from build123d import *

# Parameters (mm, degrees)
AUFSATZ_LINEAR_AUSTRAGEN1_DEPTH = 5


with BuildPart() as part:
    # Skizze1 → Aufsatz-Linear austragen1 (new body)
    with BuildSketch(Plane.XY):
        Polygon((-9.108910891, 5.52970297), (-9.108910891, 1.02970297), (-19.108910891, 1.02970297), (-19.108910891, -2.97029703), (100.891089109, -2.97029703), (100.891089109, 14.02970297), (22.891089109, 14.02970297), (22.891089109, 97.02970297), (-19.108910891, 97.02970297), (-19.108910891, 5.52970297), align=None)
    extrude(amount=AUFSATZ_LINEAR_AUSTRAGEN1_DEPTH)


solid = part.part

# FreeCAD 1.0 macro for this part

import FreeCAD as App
import Part
import Sketcher
from FreeCAD import Vector
Q = App.Units.Quantity

doc = App.newDocument("Part")
body = doc.addObject("PartDesign::Body", "Body")

# Sketch on XY plane
sketch1 = body.newObject("Sketcher::SketchObject", "Sketch")
sketch1.AttachmentSupport = (doc.getObject("XY_Plane"), [""])
sketch1.MapMode = "FlatFace"
sketch1.addGeometry([
    Part.LineSegment(Vector(-9.108911, 5.529703, 0), Vector(-9.108911, 1.029703, 0)),  # 0
    Part.LineSegment(Vector(-9.108911, 1.029703, 0), Vector(-19.108911, 1.029703, 0)),  # 1
    Part.LineSegment(Vector(-19.108911, 1.029703, 0), Vector(-19.108911, -2.970297, 0)),  # 2
    Part.LineSegment(Vector(-19.108911, -2.970297, 0), Vector(100.891089, -2.970297, 0)),  # 3
    Part.LineSegment(Vector(100.891089, -2.970297, 0), Vector(100.891089, 14.029703, 0)),  # 4
    Part.LineSegment(Vector(100.891089, 14.029703, 0), Vector(22.891089, 14.029703, 0)),  # 5
    Part.LineSegment(Vector(22.891089, 14.029703, 0), Vector(22.891089, 97.029703, 0)),  # 6
    Part.LineSegment(Vector(22.891089, 97.029703, 0), Vector(-19.108911, 97.029703, 0)),  # 7
    Part.LineSegment(Vector(-19.108911, 97.029703, 0), Vector(-19.108911, 5.529703, 0)),  # 8
    Part.LineSegment(Vector(-19.108911, 5.529703, 0), Vector(-9.108911, 5.529703, 0)),  # 9
], False)
sketch1.addConstraint([
    Sketcher.Constraint("Coincident", 0, 2, 1, 1),
    Sketcher.Constraint("Coincident", 1, 2, 2, 1),
    Sketcher.Constraint("Coincident", 2, 2, 3, 1),
    Sketcher.Constraint("Coincident", 3, 2, 4, 1),
    Sketcher.Constraint("Coincident", 4, 2, 5, 1),
    Sketcher.Constraint("Coincident", 5, 2, 6, 1),
    Sketcher.Constraint("Coincident", 6, 2, 7, 1),
    Sketcher.Constraint("Coincident", 7, 2, 8, 1),
    Sketcher.Constraint("Coincident", 8, 2, 9, 1),
    Sketcher.Constraint("Coincident", 9, 2, 0, 1),
    Sketcher.Constraint("Vertical", 0),
    Sketcher.Constraint("Horizontal", 1),
    Sketcher.Constraint("Vertical", 2),
    Sketcher.Constraint("Horizontal", 3),
    Sketcher.Constraint("Vertical", 4),
    Sketcher.Constraint("Horizontal", 5),
    Sketcher.Constraint("Vertical", 6),
    Sketcher.Constraint("Horizontal", 7),
    Sketcher.Constraint("Vertical", 8),
    Sketcher.Constraint("Horizontal", 9),
    Sketcher.Constraint("Vertical", 2, 2, 7, 2),
    Sketcher.Constraint("DistanceX", 1, 2, 1, 1, Q("10 mm")),
    Sketcher.Constraint("DistanceX", 3, 1, 3, 2, Q("120 mm")),
    Sketcher.Constraint("DistanceX", 5, 2, 5, 1, Q("78 mm")),
    Sketcher.Constraint("DistanceY", 2, 2, 2, 1, Q("4 mm")),
    Sketcher.Constraint("DistanceY", 4, 1, 4, 2, Q("17 mm")),
    Sketcher.Constraint("DistanceY", 6, 1, 6, 2, Q("83 mm")),
    Sketcher.Constraint("DistanceY", 0, 2, 0, 1, Q("4.5 mm")),
    Sketcher.Constraint("DistanceX", 0, 2, -1, 1, Q("9.108911 mm")),
    Sketcher.Constraint("DistanceY", -1, 1, 0, 2, Q("1.029703 mm")),
])
pad1 = body.newObject("PartDesign::Pad", "Pad")
pad1.Profile = sketch1
pad1.Length = 5

doc.recompute()
